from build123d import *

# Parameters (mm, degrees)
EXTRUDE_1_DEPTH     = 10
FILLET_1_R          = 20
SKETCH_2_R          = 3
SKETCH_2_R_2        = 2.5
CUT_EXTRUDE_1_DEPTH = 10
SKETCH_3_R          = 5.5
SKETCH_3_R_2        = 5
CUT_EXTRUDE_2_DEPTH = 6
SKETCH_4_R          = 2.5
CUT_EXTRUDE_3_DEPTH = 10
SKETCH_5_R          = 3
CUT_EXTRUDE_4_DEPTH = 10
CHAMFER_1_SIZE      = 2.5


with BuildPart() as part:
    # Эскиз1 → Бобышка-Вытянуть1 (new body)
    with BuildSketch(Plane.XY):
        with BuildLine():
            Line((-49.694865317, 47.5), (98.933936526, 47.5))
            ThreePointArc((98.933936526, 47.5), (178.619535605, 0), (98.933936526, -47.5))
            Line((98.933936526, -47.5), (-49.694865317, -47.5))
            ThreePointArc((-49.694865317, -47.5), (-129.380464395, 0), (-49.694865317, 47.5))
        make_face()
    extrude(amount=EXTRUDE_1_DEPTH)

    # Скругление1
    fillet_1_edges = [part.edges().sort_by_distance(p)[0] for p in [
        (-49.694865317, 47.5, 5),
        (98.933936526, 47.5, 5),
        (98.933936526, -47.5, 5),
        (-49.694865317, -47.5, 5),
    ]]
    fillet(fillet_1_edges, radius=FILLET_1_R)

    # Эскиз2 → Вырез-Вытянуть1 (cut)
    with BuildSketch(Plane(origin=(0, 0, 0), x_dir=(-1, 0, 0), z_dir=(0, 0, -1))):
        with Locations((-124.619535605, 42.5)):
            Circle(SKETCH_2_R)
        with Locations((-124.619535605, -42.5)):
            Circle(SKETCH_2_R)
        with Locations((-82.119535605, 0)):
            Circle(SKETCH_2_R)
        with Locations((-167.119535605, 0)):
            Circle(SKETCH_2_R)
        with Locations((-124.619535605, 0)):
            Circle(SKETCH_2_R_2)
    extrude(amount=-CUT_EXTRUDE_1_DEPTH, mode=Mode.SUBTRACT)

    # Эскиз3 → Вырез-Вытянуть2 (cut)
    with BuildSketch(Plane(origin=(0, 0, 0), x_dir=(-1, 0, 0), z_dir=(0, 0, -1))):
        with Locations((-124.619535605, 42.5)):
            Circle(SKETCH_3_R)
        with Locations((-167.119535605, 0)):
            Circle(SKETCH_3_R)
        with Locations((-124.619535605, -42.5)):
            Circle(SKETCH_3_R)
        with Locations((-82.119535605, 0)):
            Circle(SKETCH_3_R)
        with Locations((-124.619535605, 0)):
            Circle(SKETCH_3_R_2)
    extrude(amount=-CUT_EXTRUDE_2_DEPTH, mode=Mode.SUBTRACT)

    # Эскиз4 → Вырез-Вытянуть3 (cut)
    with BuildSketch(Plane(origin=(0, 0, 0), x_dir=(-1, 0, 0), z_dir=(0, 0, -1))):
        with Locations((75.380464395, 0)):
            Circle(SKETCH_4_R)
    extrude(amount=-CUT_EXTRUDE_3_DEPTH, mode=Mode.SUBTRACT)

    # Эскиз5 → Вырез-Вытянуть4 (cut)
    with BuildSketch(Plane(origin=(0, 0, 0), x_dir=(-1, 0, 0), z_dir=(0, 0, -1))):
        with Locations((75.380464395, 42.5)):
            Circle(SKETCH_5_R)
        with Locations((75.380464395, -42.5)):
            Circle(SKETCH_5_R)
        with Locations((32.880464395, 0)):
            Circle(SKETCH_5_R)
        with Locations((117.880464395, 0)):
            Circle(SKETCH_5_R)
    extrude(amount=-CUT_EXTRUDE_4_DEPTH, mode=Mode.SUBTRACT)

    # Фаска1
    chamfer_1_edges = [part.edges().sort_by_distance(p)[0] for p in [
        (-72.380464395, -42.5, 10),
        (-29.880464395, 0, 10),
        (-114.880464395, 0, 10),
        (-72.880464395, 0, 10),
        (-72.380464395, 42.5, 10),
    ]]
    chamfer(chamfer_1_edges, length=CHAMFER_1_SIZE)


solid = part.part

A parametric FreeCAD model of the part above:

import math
import FreeCAD as App
import Part
import Sketcher
from FreeCAD import Vector
Q = App.Units.Quantity


def edges_at(feature, points):
    """Names of the edges that pass closest to the given points."""
    edges = feature.Shape.Edges
    near = lambda p: min(range(len(edges)), key=lambda i: edges[i].distToShape(Part.Vertex(*p))[0])
    return sorted({f"Edge{near(p) + 1}" for p in points})

doc = App.newDocument("Part")
body = doc.addObject("PartDesign::Body", "Body")

sketch1 = body.newObject("Sketcher::SketchObject", "Sketch")
sketch1.AttachmentSupport = (doc.getObject("XY_Plane"), [""])
sketch1.MapMode = "FlatFace"
sketch1.addGeometry(Part.LineSegment(Vector(99, 48, 0), Vector(-50, 48, 0)), False)
sketch1.addGeometry(Part.ArcOfCircle(Part.Circle(Vector(-75, 0, 0), Vector(0, 0, 1), 54), math.radians(62), math.radians(298)), False)
sketch1.addGeometry(Part.LineSegment(Vector(-50, -48, 0), Vector(99, -48, 0)), False)
sketch1.addGeometry(Part.ArcOfCircle(Part.Circle(Vector(125, 0, 0), Vector(0, 0, 1), 54), math.radians(-118), math.radians(118)), False)
sketch1.addConstraint(Sketcher.Constraint("Coincident", 0, 2, 1, 1))
sketch1.addConstraint(Sketcher.Constraint("Coincident", 1, 2, 2, 1))
sketch1.addConstraint(Sketcher.Constraint("Coincident", 2, 2, 3, 1))
sketch1.addConstraint(Sketcher.Constraint("Coincident", 3, 2, 0, 1))
sketch1.addConstraint(Sketcher.Constraint("Horizontal", 0))
sketch1.addConstraint(Sketcher.Constraint("Horizontal", 2))
sketch1.addConstraint(Sketcher.Constraint("Equal", 1, 3))
sketch1.addConstraint(Sketcher.Constraint("Symmetric", 0, 2, 1, 2, -1))
sketch1.addConstraint(Sketcher.Constraint("PointOnObject", 3, 3, -1))
sketch1.addConstraint(Sketcher.Constraint("Radius", 1, Q("54 mm")))
sketch1.addConstraint(Sketcher.Constraint("DistanceX", 1, 3, 3, 3, Q("200 mm")))
sketch1.addConstraint(Sketcher.Constraint("DistanceY", 1, 2, 0, 2, Q("95 mm")))
sketch1.addConstraint(Sketcher.Constraint("DistanceX", 1, 3, -1, 1, Q("75.380464 mm")))
pad1 = body.newObject("PartDesign::Pad", "Pad")
pad1.Profile = sketch1
pad1.Length = 10
doc.recompute()

fillet = body.newObject("PartDesign::Fillet", "Fillet")
fillet.Base = (pad1, edges_at(pad1, [
    (-49.695, 47.5, 5),
    (98.934, 47.5, 5),
    (98.934, -47.5, 5),
    (-49.695, -47.5, 5),
]))
fillet.Radius = 20

sketch2 = body.newObject("Sketcher::SketchObject", "Sketch001")
sketch2.AttachmentSupport = (doc.getObject("XY_Plane"), [""])
sketch2.MapMode = "FlatFace"
sketch2.addGeometry(Part.Circle(Vector(124.6, 42.5, 0), Vector(0, 0, 1), 3), False)
sketch2.addGeometry(Part.Circle(Vector(124.6, -42.5, 0), Vector(0, 0, 1), 3), False)
sketch2.addGeometry(Part.Circle(Vector(82.1, 0, 0), Vector(0, 0, 1), 3), False)
sketch2.addGeometry(Part.Circle(Vector(167.1, 0, 0), Vector(0, 0, 1), 3), False)
sketch2.addGeometry(Part.Circle(Vector(124.6, 0, 0), Vector(0, 0, 1), 2.5), False)
sketch2.addConstraint(Sketcher.Constraint("Equal", 0, 1))
sketch2.addConstraint(Sketcher.Constraint("Equal", 1, 2))
sketch2.addConstraint(Sketcher.Constraint("Equal", 2, 3))
sketch2.addConstraint(Sketcher.Constraint("Symmetric", 0, 3, 1, 3, -1))
sketch2.addConstraint(Sketcher.Constraint("PointOnObject", 2, 3, -1))
sketch2.addConstraint(Sketcher.Constraint("PointOnObject", 3, 3, -1))
sketch2.addConstraint(Sketcher.Constraint("PointOnObject", 4, 3, -1))
sketch2.addConstraint(Sketcher.Constraint("Vertical", 1, 3, 4, 3))
sketch2.addConstraint(Sketcher.Constraint("Diameter", 0, Q("6 mm")))
sketch2.addConstraint(Sketcher.Constraint("Diameter", 4, Q("5 mm")))
sketch2.addConstraint(Sketcher.Constraint("DistanceY", 1, 3, 0, 3, Q("85 mm")))
sketch2.addConstraint(Sketcher.Constraint("DistanceX", 2, 3, 3, 3, Q("85 mm")))
sketch2.addConstraint(Sketcher.Constraint("DistanceX", 2, 3, 0, 3, Q("42.5 mm")))
sketch2.addConstraint(Sketcher.Constraint("DistanceX", -1, 1, 0, 3, Q("124.619536 mm")))
pocket1 = body.newObject("PartDesign::Pocket", "Pocket")
pocket1.Profile = sketch2
pocket1.Length = 10
pocket1.Reversed = True

sketch3 = body.newObject("Sketcher::SketchObject", "Sketch002")
sketch3.AttachmentSupport = (doc.getObject("XY_Plane"), [""])
sketch3.MapMode = "FlatFace"
sketch3.addGeometry(Part.Circle(Vector(125, 42, 0), Vector(0, 0, 1), 6), False)
sketch3.addGeometry(Part.Circle(Vector(167, 0, 0), Vector(0, 0, 1), 6), False)
sketch3.addGeometry(Part.Circle(Vector(125, -42, 0), Vector(0, 0, 1), 6), False)
sketch3.addGeometry(Part.Circle(Vector(82, 0, 0), Vector(0, 0, 1), 6), False)
sketch3.addGeometry(Part.Circle(Vector(125, 0, 0), Vector(0, 0, 1), 5), False)
sketch3.addConstraint(Sketcher.Constraint("Equal", 0, 1))
sketch3.addConstraint(Sketcher.Constraint("Equal", 1, 2))
sketch3.addConstraint(Sketcher.Constraint("Equal", 2, 3))
sketch3.addConstraint(Sketcher.Constraint("Symmetric", 0, 3, 2, 3, -1))
sketch3.addConstraint(Sketcher.Constraint("PointOnObject", 1, 3, -1))
sketch3.addConstraint(Sketcher.Constraint("PointOnObject", 3, 3, -1))
sketch3.addConstraint(Sketcher.Constraint("PointOnObject", 4, 3, -1))
sketch3.addConstraint(Sketcher.Constraint("Vertical", 2, 3, 4, 3))
sketch3.addConstraint(Sketcher.Constraint("Diameter", 0, Q("11 mm")))
sketch3.addConstraint(Sketcher.Constraint("Diameter", 4, Q("10 mm")))
sketch3.addConstraint(Sketcher.Constraint("DistanceY", 2, 3, 0, 3, Q("85 mm")))
sketch3.addConstraint(Sketcher.Constraint("DistanceX", 3, 3, 1, 3, Q("85 mm")))
sketch3.addConstraint(Sketcher.Constraint("DistanceX", 0, 3, 1, 3, Q("42.5 mm")))
sketch3.addConstraint(Sketcher.Constraint("DistanceX", -1, 1, 0, 3, Q("124.619536 mm")))
pocket2 = body.newObject("PartDesign::Pocket", "Pocket001")
pocket2.Profile = sketch3
pocket2.Length = 6
pocket2.Reversed = True

sketch4 = body.newObject("Sketcher::SketchObject", "Sketch003")
sketch4.AttachmentSupport = (doc.getObject("XY_Plane"), [""])
sketch4.MapMode = "FlatFace"
sketch4.addGeometry(Part.Circle(Vector(-75.4, 0, 0), Vector(0, 0, 1), 2.5), False)
sketch4.addConstraint(Sketcher.Constraint("PointOnObject", 0, 3, -1))
sketch4.addConstraint(Sketcher.Constraint("Diameter", 0, Q("5 mm")))
sketch4.addConstraint(Sketcher.Constraint("DistanceX", 0, 3, -1, 1, Q("75.380464 mm")))
pocket3 = body.newObject("PartDesign::Pocket", "Pocket002")
pocket3.Profile = sketch4
pocket3.Length = 10
pocket3.Reversed = True

sketch5 = body.newObject("Sketcher::SketchObject", "Sketch004")
sketch5.AttachmentSupport = (doc.getObject("XY_Plane"), [""])
sketch5.MapMode = "FlatFace"
sketch5.addGeometry(Part.Circle(Vector(-75.4, 42.5, 0), Vector(0, 0, 1), 3), False)
sketch5.addGeometry(Part.Circle(Vector(-75.4, -42.5, 0), Vector(0, 0, 1), 3), False)
sketch5.addGeometry(Part.Circle(Vector(-32.9, 0, 0), Vector(0, 0, 1), 3), False)
sketch5.addGeometry(Part.Circle(Vector(-117.9, 0, 0), Vector(0, 0, 1), 3), False)
sketch5.addConstraint(Sketcher.Constraint("Equal", 0, 1))
sketch5.addConstraint(Sketcher.Constraint("Equal", 1, 2))
sketch5.addConstraint(Sketcher.Constraint("Equal", 2, 3))
sketch5.addConstraint(Sketcher.Constraint("Symmetric", 0, 3, 1, 3, -1))
sketch5.addConstraint(Sketcher.Constraint("PointOnObject", 2, 3, -1))
sketch5.addConstraint(Sketcher.Constraint("PointOnObject", 3, 3, -1))
sketch5.addConstraint(Sketcher.Constraint("Diameter", 0, Q("6 mm")))
sketch5.addConstraint(Sketcher.Constraint("DistanceY", 1, 3, 0, 3, Q("85 mm")))
sketch5.addConstraint(Sketcher.Constraint("DistanceX", 3, 3, 2, 3, Q("85 mm")))
sketch5.addConstraint(Sketcher.Constraint("DistanceX", 0, 3, 2, 3, Q("42.5 mm")))
sketch5.addConstraint(Sketcher.Constraint("DistanceX", 0, 3, -1, 1, Q("75.380464 mm")))
pocket4 = body.newObject("PartDesign::Pocket", "Pocket003")
pocket4.Profile = sketch5
pocket4.Length = 10
pocket4.Reversed = True
doc.recompute()

chamfer = body.newObject("PartDesign::Chamfer", "Chamfer")
chamfer.Base = (pocket4, edges_at(pocket4, [
    (-72.38, -42.5, 10),
    (-29.88, 0, 10),
    (-114.88, 0, 10),
    (-72.88, 0, 10),
    (-72.38, 42.5, 10),
]))
chamfer.Size = 2.5

doc.recompute()
